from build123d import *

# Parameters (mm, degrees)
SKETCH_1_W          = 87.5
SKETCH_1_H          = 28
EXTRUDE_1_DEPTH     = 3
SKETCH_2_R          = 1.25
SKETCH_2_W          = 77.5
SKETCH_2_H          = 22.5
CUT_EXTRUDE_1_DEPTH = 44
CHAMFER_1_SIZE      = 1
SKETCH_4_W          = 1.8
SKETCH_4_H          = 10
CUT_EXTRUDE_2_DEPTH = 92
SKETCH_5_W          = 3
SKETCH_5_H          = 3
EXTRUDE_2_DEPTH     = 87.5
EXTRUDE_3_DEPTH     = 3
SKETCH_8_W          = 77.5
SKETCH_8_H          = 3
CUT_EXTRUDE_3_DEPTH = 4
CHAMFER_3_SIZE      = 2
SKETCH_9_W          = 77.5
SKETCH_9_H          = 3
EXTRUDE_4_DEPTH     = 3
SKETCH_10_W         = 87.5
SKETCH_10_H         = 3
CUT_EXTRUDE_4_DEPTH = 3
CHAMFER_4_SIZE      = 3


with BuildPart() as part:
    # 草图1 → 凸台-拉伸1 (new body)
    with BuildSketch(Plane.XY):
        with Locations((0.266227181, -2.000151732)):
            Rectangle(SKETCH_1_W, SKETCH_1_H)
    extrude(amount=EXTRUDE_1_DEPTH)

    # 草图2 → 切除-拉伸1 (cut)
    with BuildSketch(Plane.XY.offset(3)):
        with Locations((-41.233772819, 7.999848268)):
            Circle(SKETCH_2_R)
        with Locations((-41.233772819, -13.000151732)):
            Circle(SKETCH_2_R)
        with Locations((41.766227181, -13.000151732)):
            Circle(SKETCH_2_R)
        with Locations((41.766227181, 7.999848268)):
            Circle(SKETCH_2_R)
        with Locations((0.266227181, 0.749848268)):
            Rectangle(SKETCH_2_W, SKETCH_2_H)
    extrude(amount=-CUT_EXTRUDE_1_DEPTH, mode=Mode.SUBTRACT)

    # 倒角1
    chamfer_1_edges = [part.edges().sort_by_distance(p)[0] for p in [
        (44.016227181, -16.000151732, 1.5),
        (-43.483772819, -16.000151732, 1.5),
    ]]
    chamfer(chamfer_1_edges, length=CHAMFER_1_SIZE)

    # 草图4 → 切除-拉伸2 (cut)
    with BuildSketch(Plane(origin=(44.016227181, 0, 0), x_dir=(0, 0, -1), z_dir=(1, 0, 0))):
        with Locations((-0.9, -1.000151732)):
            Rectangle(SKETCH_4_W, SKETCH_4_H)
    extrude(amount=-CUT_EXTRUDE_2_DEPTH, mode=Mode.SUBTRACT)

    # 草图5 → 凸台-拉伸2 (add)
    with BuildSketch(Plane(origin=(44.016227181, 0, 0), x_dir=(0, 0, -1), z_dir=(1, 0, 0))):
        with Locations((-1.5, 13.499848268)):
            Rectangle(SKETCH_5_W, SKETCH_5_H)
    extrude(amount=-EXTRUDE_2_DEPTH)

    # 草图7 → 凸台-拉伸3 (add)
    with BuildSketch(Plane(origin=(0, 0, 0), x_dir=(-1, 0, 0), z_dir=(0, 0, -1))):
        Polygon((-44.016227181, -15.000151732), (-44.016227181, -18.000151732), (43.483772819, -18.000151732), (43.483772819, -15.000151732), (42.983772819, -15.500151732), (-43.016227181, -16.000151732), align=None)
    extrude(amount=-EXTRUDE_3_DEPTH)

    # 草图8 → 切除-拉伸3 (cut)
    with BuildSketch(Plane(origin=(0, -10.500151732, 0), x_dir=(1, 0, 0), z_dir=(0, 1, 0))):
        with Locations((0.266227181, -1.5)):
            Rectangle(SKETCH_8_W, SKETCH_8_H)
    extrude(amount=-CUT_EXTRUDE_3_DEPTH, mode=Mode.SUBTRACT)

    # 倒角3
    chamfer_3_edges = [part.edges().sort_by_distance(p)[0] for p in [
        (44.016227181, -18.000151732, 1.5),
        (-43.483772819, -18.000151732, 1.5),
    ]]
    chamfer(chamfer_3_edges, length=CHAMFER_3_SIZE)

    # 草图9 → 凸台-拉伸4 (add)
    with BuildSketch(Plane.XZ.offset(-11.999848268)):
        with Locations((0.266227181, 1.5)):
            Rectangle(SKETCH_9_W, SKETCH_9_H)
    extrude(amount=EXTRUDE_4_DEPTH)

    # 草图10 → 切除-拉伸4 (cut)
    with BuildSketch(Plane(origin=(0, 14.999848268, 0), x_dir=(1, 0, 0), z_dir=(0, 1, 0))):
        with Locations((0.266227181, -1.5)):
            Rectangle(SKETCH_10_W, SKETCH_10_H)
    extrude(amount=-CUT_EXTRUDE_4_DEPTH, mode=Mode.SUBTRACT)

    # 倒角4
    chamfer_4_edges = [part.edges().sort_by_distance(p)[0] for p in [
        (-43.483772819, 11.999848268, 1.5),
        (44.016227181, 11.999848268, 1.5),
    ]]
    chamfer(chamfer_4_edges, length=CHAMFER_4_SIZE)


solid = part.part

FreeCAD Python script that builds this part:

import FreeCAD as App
import Part
import Sketcher

V = App.Vector
Q = App.Units.Quantity


def edges_at(feature, points):
    """Names of the edges that pass closest to the given points."""
    edges = feature.Shape.Edges
    near = lambda p: min(range(len(edges)), key=lambda i: edges[i].distToShape(Part.Vertex(*p))[0])
    return sorted({f"Edge{near(p) + 1}" for p in points})


def add_polygon(sketch, points):
    """Adds a closed chain of lines whose ends are joined by coincident constraints."""
    first, n = sketch.GeometryCount, len(points)
    for a, b in zip(points, points[1:] + points[:1]):
        sketch.addGeometry(Part.LineSegment(App.Vector(*a, 0), App.Vector(*b, 0)), False)
    for i in range(n):
        sketch.addConstraint(Sketcher.Constraint("Coincident", first + i, 2, first + (i + 1) % n, 1))

doc = App.newDocument("Part")
body = doc.addObject("PartDesign::Body", "Body")

sketch1 = body.newObject("Sketcher::SketchObject", "Sketch")
sketch1.AttachmentSupport = (doc.getObject("XY_Plane"), [""])
sketch1.MapMode = "FlatFace"
add_polygon(sketch1, [(-43, 12), (-43, -16), (44, -16), (44, 12)])
sketch1.addConstraint(Sketcher.Constraint("Vertical", 0))
sketch1.addConstraint(Sketcher.Constraint("Horizontal", 1))
sketch1.addConstraint(Sketcher.Constraint("Vertical", 2))
sketch1.addConstraint(Sketcher.Constraint("Horizontal", 3))
sketch1.addConstraint(Sketcher.Constraint("DistanceY", 0, 2, 0, 1, Q("28 mm")))
sketch1.addConstraint(Sketcher.Constraint("DistanceX", 1, 1, 1, 2, Q("87.5 mm")))
sketch1.addConstraint(Sketcher.Constraint("DistanceY", 0, 2, -1, 1, Q("16.000152 mm")))
sketch1.addConstraint(Sketcher.Constraint("DistanceX", 0, 2, -1, 1, Q("43.483773 mm")))
pad1 = body.newObject("PartDesign::Pad", "Pad")
pad1.Profile = sketch1
pad1.Length = 3

sketch2 = body.newObject("Sketcher::SketchObject", "Sketch001")
sketch2.AttachmentSupport = (doc.getObject("XY_Plane"), [""])
sketch2.MapMode = "FlatFace"
sketch2.AttachmentOffset = App.Placement(V(0, 0, 3), App.Rotation())
sketch2.addGeometry(Part.Circle(V(-41.2, 8, 0), V(0, 0, 1), 1.2), False)
sketch2.addGeometry(Part.Circle(V(-41.2, -13, 0), V(0, 0, 1), 1.2), False)
sketch2.addGeometry(Part.Circle(V(41.8, -13, 0), V(0, 0, 1), 1.2), False)
sketch2.addGeometry(Part.Circle(V(41.8, 8, 0), V(0, 0, 1), 1.2), False)
add_polygon(sketch2, [(-38.5, 12), (-38.5, -10.5), (39, -10.5), (39, 12)])
sketch2.addConstraint(Sketcher.Constraint("Vertical", 4))
sketch2.addConstraint(Sketcher.Constraint("Horizontal", 5))
sketch2.addConstraint(Sketcher.Constraint("Vertical", 6))
sketch2.addConstraint(Sketcher.Constraint("Horizontal", 7))
sketch2.addConstraint(Sketcher.Constraint("Equal", 0, 1))
sketch2.addConstraint(Sketcher.Constraint("Equal", 1, 2))
sketch2.addConstraint(Sketcher.Constraint("Equal", 2, 3))
sketch2.addConstraint(Sketcher.Constraint("Horizontal", 1, 3, 2, 3))
sketch2.addConstraint(Sketcher.Constraint("Horizontal", 0, 3, 3, 3))
sketch2.addConstraint(Sketcher.Constraint("Vertical", 0, 3, 1, 3))
sketch2.addConstraint(Sketcher.Constraint("Vertical", 2, 3, 3, 3))
sketch2.addConstraint(Sketcher.Constraint("Diameter", 0, Q("2.5 mm")))
sketch2.addConstraint(Sketcher.Constraint("DistanceX", 5, 1, 5, 2, Q("77.5 mm")))
sketch2.addConstraint(Sketcher.Constraint("DistanceY", 4, 2, 4, 1, Q("22.5 mm")))
sketch2.addConstraint(Sketcher.Constraint("DistanceY", 1, 3, 0, 3, Q("21 mm")))
sketch2.addConstraint(Sketcher.Constraint("DistanceX", 1, 3, 2, 3, Q("83 mm")))
sketch2.addConstraint(Sketcher.Constraint("DistanceY", 3, 3, 6, 2, Q("4 mm")))
sketch2.addConstraint(Sketcher.Constraint("DistanceX", 1, 3, 4, 2, Q("2.75 mm")))
sketch2.addConstraint(Sketcher.Constraint("DistanceY", -1, 1, 0, 3, Q("7.999848 mm")))
sketch2.addConstraint(Sketcher.Constraint("DistanceX", 0, 3, -1, 1, Q("41.233773 mm")))
pocket1 = body.newObject("PartDesign::Pocket", "Pocket")
pocket1.Profile = sketch2
pocket1.Length = 44
doc.recompute()

chamfer = body.newObject("PartDesign::Chamfer", "Chamfer")
chamfer.Base = (pocket1, edges_at(pocket1, [(44.016, -16, 1.5), (-43.484, -16, 1.5)]))
chamfer.Size = 1

sketch3 = body.newObject("Sketcher::SketchObject", "Sketch002")
sketch3.AttachmentSupport = (doc.getObject("YZ_Plane"), [""])
sketch3.MapMode = "FlatFace"
sketch3.AttachmentOffset = App.Placement(V(0, 0, 44.016227), App.Rotation())
add_polygon(sketch3, [(4, 1.8), (-6, 1.8), (-6, 0), (4, 0)])
sketch3.addConstraint(Sketcher.Constraint("Horizontal", 0))
sketch3.addConstraint(Sketcher.Constraint("Vertical", 1))
sketch3.addConstraint(Sketcher.Constraint("Horizontal", 2))
sketch3.addConstraint(Sketcher.Constraint("Vertical", 3))
sketch3.addConstraint(Sketcher.Constraint("PointOnObject", 1, 2, -1))
sketch3.addConstraint(Sketcher.Constraint("DistanceX", 0, 2, 0, 1, Q("10 mm")))
sketch3.addConstraint(Sketcher.Constraint("DistanceY", 1, 2, 1, 1, Q("1.8 mm")))
sketch3.addConstraint(Sketcher.Constraint("DistanceX", 0, 2, -1, 1, Q("6.000152 mm")))
pocket2 = body.newObject("PartDesign::Pocket", "Pocket001")
pocket2.Profile = sketch3
pocket2.Length = 92

sketch4 = body.newObject("Sketcher::SketchObject", "Sketch003")
sketch4.AttachmentSupport = (doc.getObject("YZ_Plane"), [""])
sketch4.MapMode = "FlatFace"
sketch4.AttachmentOffset = App.Placement(V(0, 0, 44.016227), App.Rotation())
add_polygon(sketch4, [(15, 3), (12, 3), (12, 0), (15, 0)])
sketch4.addConstraint(Sketcher.Constraint("Horizontal", 0))
sketch4.addConstraint(Sketcher.Constraint("Vertical", 1))
sketch4.addConstraint(Sketcher.Constraint("Horizontal", 2))
sketch4.addConstraint(Sketcher.Constraint("Vertical", 3))
sketch4.addConstraint(Sketcher.Constraint("PointOnObject", 1, 2, -1))
sketch4.addConstraint(Sketcher.Constraint("Equal", 2, 1))
sketch4.addConstraint(Sketcher.Constraint("DistanceX", 0, 2, 0, 1, Q("3 mm")))
sketch4.addConstraint(Sketcher.Constraint("DistanceX", -1, 1, 0, 2, Q("11.999848 mm")))
pad2 = body.newObject("PartDesign::Pad", "Pad001")
pad2.Profile = sketch4
pad2.Length = 87.5
pad2.Reversed = True

sketch5 = body.newObject("Sketcher::SketchObject", "Sketch004")
sketch5.AttachmentSupport = (doc.getObject("XY_Plane"), [""])
sketch5.MapMode = "FlatFace"
add_polygon(sketch5, [(44, -15), (44, -18), (-43.5, -18), (-43.5, -15), (-43, -15.5), (43, -16)])
sketch5.addConstraint(Sketcher.Constraint("Vertical", 0))
sketch5.addConstraint(Sketcher.Constraint("Horizontal", 1))
sketch5.addConstraint(Sketcher.Constraint("Vertical", 2))
sketch5.addConstraint(Sketcher.Constraint("Perpendicular", 3, 5))
sketch5.addConstraint(Sketcher.Constraint("Horizontal", 2, 2, 5, 2))
sketch5.addConstraint(Sketcher.Constraint("DistanceY", 0, 2, 0, 1, Q("3 mm")))
sketch5.addConstraint(Sketcher.Constraint("Angle", 3, Q("-45 deg")))
sketch5.addConstraint(Sketcher.Constraint("DistanceX", 1, 2, 1, 1, Q("87.5 mm")))
sketch5.addConstraint(Sketcher.Constraint("DistanceX", 3, 2, 0, 2, Q("87 mm")))
sketch5.addConstraint(Sketcher.Constraint("DistanceX", 4, 2, 0, 2, Q("1 mm")))
sketch5.addConstraint(Sketcher.Constraint("DistanceY", 0, 2, -1, 1, Q("18.000152 mm")))
sketch5.addConstraint(Sketcher.Constraint("DistanceX", -1, 1, 0, 2, Q("44.016227 mm")))
pad3 = body.newObject("PartDesign::Pad", "Pad002")
pad3.Profile = sketch5
pad3.Length = 3

sketch6 = body.newObject("Sketcher::SketchObject", "Sketch005")
sketch6.AttachmentSupport = (doc.getObject("XZ_Plane"), [""])
sketch6.MapMode = "FlatFace"
sketch6.AttachmentOffset = App.Placement(V(0, 0, 10.500152), App.Rotation())
add_polygon(sketch6, [(-38.5, 0), (-38.5, 3), (39, 3), (39, 0)])
sketch6.addConstraint(Sketcher.Constraint("Vertical", 0))
sketch6.addConstraint(Sketcher.Constraint("Horizontal", 1))
sketch6.addConstraint(Sketcher.Constraint("Vertical", 2))
sketch6.addConstraint(Sketcher.Constraint("Horizontal", 3))
sketch6.addConstraint(Sketcher.Constraint("PointOnObject", 2, 2, -1))
sketch6.addConstraint(Sketcher.Constraint("DistanceY", 0, 1, 0, 2, Q("3 mm")))
sketch6.addConstraint(Sketcher.Constraint("DistanceX", 1, 1, 1, 2, Q("77.5 mm")))
sketch6.addConstraint(Sketcher.Constraint("DistanceX", 0, 2, -1, 1, Q("38.483773 mm")))
pocket3 = body.newObject("PartDesign::Pocket", "Pocket002")
pocket3.Profile = sketch6
pocket3.Length = 4
pocket3.Reversed = True
doc.recompute()

chamfer2 = body.newObject("PartDesign::Chamfer", "Chamfer001")
chamfer2.Base = (pocket3, edges_at(pocket3, [(44.016, -18, 1.5), (-43.484, -18, 1.5)]))
chamfer2.Size = 2

sketch7 = body.newObject("Sketcher::SketchObject", "Sketch006")
sketch7.AttachmentSupport = (doc.getObject("XZ_Plane"), [""])
sketch7.MapMode = "FlatFace"
sketch7.AttachmentOffset = App.Placement(V(0, 0, -11.999848), App.Rotation())
add_polygon(sketch7, [(-38.5, 3), (-38.5, 0), (39, 0), (39, 3)])
sketch7.addConstraint(Sketcher.Constraint("Vertical", 0))
sketch7.addConstraint(Sketcher.Constraint("Horizontal", 1))
sketch7.addConstraint(Sketcher.Constraint("Vertical", 2))
sketch7.addConstraint(Sketcher.Constraint("Horizontal", 3))
sketch7.addConstraint(Sketcher.Constraint("PointOnObject", 0, 2, -1))
sketch7.addConstraint(Sketcher.Constraint("DistanceY", 0, 2, 0, 1, Q("3 mm")))
sketch7.addConstraint(Sketcher.Constraint("DistanceX", 1, 1, 1, 2, Q("77.5 mm")))
sketch7.addConstraint(Sketcher.Constraint("DistanceX", 0, 2, -1, 1, Q("38.483773 mm")))
pad4 = body.newObject("PartDesign::Pad", "Pad003")
pad4.Profile = sketch7
pad4.Length = 3

sketch8 = body.newObject("Sketcher::SketchObject", "Sketch007")
sketch8.AttachmentSupport = (doc.getObject("XZ_Plane"), [""])
sketch8.MapMode = "FlatFace"
sketch8.AttachmentOffset = App.Placement(V(0, 0, -14.999848), App.Rotation())
add_polygon(sketch8, [(-43.5, 0), (-43.5, 3), (44, 3), (44, 0)])
sketch8.addConstraint(Sketcher.Constraint("Vertical", 0))
sketch8.addConstraint(Sketcher.Constraint("Horizontal", 1))
sketch8.addConstraint(Sketcher.Constraint("Vertical", 2))
sketch8.addConstraint(Sketcher.Constraint("Horizontal", 3))
sketch8.addConstraint(Sketcher.Constraint("PointOnObject", 2, 2, -1))
sketch8.addConstraint(Sketcher.Constraint("DistanceY", 0, 1, 0, 2, Q("3 mm")))
sketch8.addConstraint(Sketcher.Constraint("DistanceX", 1, 1, 1, 2, Q("87.5 mm")))
sketch8.addConstraint(Sketcher.Constraint("DistanceX", 0, 2, -1, 1, Q("43.483773 mm")))
pocket4 = body.newObject("PartDesign::Pocket", "Pocket003")
pocket4.Profile = sketch8
pocket4.Length = 3
pocket4.Reversed = True
doc.recompute()

chamfer3 = body.newObject("PartDesign::Chamfer", "Chamfer002")
chamfer3.Base = (pocket4, edges_at(pocket4, [(-43.484, 12, 1.5), (44.016, 12, 1.5)]))
chamfer3.Size = 3

doc.recompute()
